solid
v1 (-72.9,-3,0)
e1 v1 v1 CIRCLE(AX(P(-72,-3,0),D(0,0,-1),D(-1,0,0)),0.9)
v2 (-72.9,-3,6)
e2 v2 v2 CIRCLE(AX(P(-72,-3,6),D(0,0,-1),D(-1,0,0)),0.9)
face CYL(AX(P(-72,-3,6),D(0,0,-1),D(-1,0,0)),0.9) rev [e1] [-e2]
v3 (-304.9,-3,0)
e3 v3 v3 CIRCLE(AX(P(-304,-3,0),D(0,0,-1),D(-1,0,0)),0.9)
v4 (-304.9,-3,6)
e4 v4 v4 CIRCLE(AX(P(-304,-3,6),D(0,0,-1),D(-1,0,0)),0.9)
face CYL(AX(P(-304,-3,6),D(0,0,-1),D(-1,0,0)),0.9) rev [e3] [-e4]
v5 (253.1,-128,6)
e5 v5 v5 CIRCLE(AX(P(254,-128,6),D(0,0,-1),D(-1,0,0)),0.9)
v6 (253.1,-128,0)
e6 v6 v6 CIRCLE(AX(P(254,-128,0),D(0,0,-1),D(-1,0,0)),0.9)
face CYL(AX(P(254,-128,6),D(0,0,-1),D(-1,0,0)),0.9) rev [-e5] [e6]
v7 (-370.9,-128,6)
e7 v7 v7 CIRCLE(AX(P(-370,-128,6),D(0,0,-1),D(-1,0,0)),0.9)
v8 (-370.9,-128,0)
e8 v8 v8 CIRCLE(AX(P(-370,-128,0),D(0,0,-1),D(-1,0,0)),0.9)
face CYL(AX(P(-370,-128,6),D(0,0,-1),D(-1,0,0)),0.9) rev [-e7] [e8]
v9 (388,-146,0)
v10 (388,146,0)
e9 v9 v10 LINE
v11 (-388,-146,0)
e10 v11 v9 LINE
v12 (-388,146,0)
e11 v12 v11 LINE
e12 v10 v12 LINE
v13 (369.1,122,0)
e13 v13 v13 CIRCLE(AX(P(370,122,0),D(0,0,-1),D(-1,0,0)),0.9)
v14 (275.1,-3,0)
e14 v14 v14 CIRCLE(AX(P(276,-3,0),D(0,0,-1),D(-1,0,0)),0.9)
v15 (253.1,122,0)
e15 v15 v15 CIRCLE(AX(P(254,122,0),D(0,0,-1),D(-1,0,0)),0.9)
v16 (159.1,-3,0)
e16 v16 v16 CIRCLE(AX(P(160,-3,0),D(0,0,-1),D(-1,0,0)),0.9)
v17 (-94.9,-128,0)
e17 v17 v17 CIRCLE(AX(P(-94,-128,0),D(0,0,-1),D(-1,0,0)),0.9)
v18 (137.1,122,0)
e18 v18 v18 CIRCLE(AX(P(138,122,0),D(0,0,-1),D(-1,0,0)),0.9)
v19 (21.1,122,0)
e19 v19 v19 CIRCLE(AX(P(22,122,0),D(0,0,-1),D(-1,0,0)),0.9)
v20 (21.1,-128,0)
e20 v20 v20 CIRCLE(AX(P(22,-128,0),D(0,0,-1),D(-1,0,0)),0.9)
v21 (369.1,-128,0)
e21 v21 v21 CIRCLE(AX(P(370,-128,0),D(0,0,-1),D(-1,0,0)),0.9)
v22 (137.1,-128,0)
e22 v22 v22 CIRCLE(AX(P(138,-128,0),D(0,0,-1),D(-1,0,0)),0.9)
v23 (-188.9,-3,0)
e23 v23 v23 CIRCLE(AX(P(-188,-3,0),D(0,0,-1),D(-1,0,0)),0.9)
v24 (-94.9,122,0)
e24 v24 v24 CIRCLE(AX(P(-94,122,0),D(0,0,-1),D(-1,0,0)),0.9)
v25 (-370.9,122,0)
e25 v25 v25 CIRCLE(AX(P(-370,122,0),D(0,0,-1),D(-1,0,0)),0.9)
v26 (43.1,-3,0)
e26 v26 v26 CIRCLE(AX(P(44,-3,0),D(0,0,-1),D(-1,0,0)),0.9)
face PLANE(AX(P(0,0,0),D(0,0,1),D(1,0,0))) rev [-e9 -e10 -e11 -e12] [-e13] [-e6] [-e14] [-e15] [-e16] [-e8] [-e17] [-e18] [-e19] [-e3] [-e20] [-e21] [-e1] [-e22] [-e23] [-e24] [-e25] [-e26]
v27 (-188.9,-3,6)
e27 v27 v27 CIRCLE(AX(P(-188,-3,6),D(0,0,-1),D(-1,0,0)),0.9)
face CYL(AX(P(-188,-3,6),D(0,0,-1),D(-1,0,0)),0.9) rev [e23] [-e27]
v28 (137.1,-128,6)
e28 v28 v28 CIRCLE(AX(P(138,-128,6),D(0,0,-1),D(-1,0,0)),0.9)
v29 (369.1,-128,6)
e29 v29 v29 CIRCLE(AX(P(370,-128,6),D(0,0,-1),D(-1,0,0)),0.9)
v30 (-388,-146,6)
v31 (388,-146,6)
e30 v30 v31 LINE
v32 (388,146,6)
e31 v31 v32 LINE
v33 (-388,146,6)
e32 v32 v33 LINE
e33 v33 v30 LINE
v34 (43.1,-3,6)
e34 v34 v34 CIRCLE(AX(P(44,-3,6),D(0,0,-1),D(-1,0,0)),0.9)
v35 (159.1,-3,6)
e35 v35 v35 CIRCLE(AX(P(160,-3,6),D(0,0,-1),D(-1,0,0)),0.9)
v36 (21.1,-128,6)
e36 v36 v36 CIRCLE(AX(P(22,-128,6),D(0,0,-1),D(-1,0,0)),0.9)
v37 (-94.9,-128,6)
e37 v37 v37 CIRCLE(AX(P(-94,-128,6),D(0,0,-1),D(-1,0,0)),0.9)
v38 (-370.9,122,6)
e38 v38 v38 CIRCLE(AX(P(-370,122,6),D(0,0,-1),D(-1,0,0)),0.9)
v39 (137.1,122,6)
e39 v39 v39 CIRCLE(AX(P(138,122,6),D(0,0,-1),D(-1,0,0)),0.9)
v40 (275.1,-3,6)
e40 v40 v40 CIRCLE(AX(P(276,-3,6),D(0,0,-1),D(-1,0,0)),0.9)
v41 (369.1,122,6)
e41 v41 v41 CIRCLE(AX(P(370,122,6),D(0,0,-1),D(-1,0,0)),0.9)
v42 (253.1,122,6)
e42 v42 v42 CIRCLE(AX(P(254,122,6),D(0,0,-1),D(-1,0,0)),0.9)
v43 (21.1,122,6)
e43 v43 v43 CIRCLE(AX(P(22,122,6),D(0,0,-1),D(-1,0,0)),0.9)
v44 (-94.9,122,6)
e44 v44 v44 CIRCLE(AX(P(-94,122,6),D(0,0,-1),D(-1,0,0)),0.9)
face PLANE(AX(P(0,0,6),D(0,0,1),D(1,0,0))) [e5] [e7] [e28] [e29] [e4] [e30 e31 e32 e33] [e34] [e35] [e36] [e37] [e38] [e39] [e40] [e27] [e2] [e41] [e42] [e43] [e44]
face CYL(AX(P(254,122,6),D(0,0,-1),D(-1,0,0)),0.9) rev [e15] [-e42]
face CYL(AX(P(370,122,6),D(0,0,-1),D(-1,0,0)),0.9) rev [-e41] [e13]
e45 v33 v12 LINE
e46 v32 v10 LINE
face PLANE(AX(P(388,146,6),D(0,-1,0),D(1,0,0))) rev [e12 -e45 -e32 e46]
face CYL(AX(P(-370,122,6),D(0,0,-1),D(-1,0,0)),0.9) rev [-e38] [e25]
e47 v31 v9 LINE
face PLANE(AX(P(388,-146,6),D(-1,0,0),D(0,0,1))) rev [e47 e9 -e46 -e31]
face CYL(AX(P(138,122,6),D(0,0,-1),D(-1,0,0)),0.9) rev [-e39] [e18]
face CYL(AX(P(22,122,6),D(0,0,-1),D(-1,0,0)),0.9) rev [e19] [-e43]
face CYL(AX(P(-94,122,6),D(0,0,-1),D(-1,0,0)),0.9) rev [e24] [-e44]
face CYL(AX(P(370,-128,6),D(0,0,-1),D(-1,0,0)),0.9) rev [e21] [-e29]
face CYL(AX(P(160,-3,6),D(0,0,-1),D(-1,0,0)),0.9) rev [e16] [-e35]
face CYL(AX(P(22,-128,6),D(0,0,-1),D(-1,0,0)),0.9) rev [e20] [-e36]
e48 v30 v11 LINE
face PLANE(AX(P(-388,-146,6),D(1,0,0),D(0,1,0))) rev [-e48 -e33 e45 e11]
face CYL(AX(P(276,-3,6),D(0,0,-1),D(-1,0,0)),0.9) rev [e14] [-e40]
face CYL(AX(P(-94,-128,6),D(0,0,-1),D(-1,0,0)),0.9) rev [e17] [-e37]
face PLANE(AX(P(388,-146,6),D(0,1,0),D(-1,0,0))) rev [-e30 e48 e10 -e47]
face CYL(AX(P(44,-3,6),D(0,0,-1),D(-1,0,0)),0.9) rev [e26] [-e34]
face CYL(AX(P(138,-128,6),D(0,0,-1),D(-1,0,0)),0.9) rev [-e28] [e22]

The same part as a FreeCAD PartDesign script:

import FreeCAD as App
import Part
import Sketcher

V = App.Vector


def add_polygon(sketch, points):
    """Adds a closed chain of lines whose ends are joined by coincident constraints."""
    first, n = sketch.GeometryCount, len(points)
    for a, b in zip(points, points[1:] + points[:1]):
        sketch.addGeometry(Part.LineSegment(App.Vector(*a, 0), App.Vector(*b, 0)), False)
    for i in range(n):
        sketch.addConstraint(Sketcher.Constraint("Coincident", first + i, 2, first + (i + 1) % n, 1))

doc = App.newDocument("Part")
body = doc.addObject("PartDesign::Body", "Body")

# Sketch on XY plane
sketch1 = body.newObject("Sketcher::SketchObject", "Sketch")
sketch1.AttachmentSupport = (doc.getObject("XY_Plane"), [""])
sketch1.MapMode = "FlatFace"
add_polygon(sketch1, [(-388, 146), (-388, -146), (388, -146), (388, 146)])  # lines 0-3
sketch1.addConstraint(Sketcher.Constraint("Vertical", 0))
sketch1.addConstraint(Sketcher.Constraint("Horizontal", 1))
sketch1.addConstraint(Sketcher.Constraint("Vertical", 2))
sketch1.addConstraint(Sketcher.Constraint("Horizontal", 3))
sketch1.addConstraint(Sketcher.Constraint("Symmetric", 0, 2, 2, 2, -1, 1))
sketch1.addConstraint(Sketcher.Constraint("DistanceX", 1, 1, 1, 2, 776.0))
sketch1.addConstraint(Sketcher.Constraint("DistanceY", 0, 2, 0, 1, 292.0))
pad1 = body.newObject("PartDesign::Pad", "Pad")
pad1.Profile = sketch1
pad1.Length = 6

# Sketch on XY plane
sketch2 = body.newObject("Sketcher::SketchObject", "Sketch001")
sketch2.AttachmentSupport = (doc.getObject("XY_Plane"), [""])
sketch2.MapMode = "FlatFace"
sketch2.addGeometry(Part.Circle(V(370, -128, 0), V(0, 0, 1), 0.9), False)
sketch2.addGeometry(Part.Circle(V(370, 122, 0), V(0, 0, 1), 0.9), False)
sketch2.addGeometry(Part.Circle(V(-370, -128, 0), V(0, 0, 1), 0.9), False)
sketch2.addGeometry(Part.Circle(V(-370, 122, 0), V(0, 0, 1), 0.9), False)
sketch2.addGeometry(Part.Circle(V(276, -3, 0), V(0, 0, 1), 0.9), False)
sketch2.addGeometry(Part.Circle(V(254, -128, 0), V(0, 0, 1), 0.9), False)
sketch2.addGeometry(Part.Circle(V(254, 122, 0), V(0, 0, 1), 0.9), False)
sketch2.addGeometry(Part.Circle(V(160, -3, 0), V(0, 0, 1), 0.9), False)
sketch2.addGeometry(Part.Circle(V(138, -128, 0), V(0, 0, 1), 0.9), False)
sketch2.addGeometry(Part.Circle(V(138, 122, 0), V(0, 0, 1), 0.9), False)
sketch2.addGeometry(Part.Circle(V(44, -3, 0), V(0, 0, 1), 0.9), False)
sketch2.addGeometry(Part.Circle(V(22, -128, 0), V(0, 0, 1), 0.9), False)
sketch2.addGeometry(Part.Circle(V(22, 122, 0), V(0, 0, 1), 0.9), False)
sketch2.addGeometry(Part.Circle(V(-72, -3, 0), V(0, 0, 1), 0.9), False)
sketch2.addGeometry(Part.Circle(V(-94, -128, 0), V(0, 0, 1), 0.9), False)
sketch2.addGeometry(Part.Circle(V(-94, 122, 0), V(0, 0, 1), 0.9), False)
sketch2.addGeometry(Part.Circle(V(-188, -3, 0), V(0, 0, 1), 0.9), False)
sketch2.addGeometry(Part.Circle(V(-304, -3, 0), V(0, 0, 1), 0.9), False)
sketch2.addConstraint(Sketcher.Constraint("Equal", 0, 1))
sketch2.addConstraint(Sketcher.Constraint("Equal", 1, 2))
sketch2.addConstraint(Sketcher.Constraint("Equal", 2, 3))
sketch2.addConstraint(Sketcher.Constraint("Equal", 3, 4))
sketch2.addConstraint(Sketcher.Constraint("Equal", 4, 5))
sketch2.addConstraint(Sketcher.Constraint("Equal", 5, 6))
sketch2.addConstraint(Sketcher.Constraint("Equal", 6, 7))
sketch2.addConstraint(Sketcher.Constraint("Equal", 7, 8))
sketch2.addConstraint(Sketcher.Constraint("Equal", 8, 9))
sketch2.addConstraint(Sketcher.Constraint("Equal", 9, 10))
sketch2.addConstraint(Sketcher.Constraint("Equal", 10, 11))
sketch2.addConstraint(Sketcher.Constraint("Equal", 11, 12))
sketch2.addConstraint(Sketcher.Constraint("Equal", 12, 13))
sketch2.addConstraint(Sketcher.Constraint("Equal", 13, 14))
sketch2.addConstraint(Sketcher.Constraint("Equal", 14, 15))
sketch2.addConstraint(Sketcher.Constraint("Equal", 15, 16))
sketch2.addConstraint(Sketcher.Constraint("Equal", 16, 17))
sketch2.addConstraint(Sketcher.Constraint("Symmetric", 0, 3, 2, 3, -2))
sketch2.addConstraint(Sketcher.Constraint("Symmetric", 1, 3, 3, 3, -2))
sketch2.addConstraint(Sketcher.Constraint("Horizontal", 2, 3, 5, 3))
sketch2.addConstraint(Sketcher.Constraint("Horizontal", 3, 3, 6, 3))
sketch2.addConstraint(Sketcher.Constraint("Horizontal", 4, 3, 7, 3))
sketch2.addConstraint(Sketcher.Constraint("Horizontal", 5, 3, 8, 3))
sketch2.addConstraint(Sketcher.Constraint("Horizontal", 6, 3, 9, 3))
sketch2.addConstraint(Sketcher.Constraint("Horizontal", 7, 3, 10, 3))
sketch2.addConstraint(Sketcher.Constraint("Horizontal", 8, 3, 11, 3))
sketch2.addConstraint(Sketcher.Constraint("Horizontal", 9, 3, 12, 3))
sketch2.addConstraint(Sketcher.Constraint("Horizontal", 10, 3, 13, 3))
sketch2.addConstraint(Sketcher.Constraint("Horizontal", 11, 3, 14, 3))
sketch2.addConstraint(Sketcher.Constraint("Horizontal", 12, 3, 15, 3))
sketch2.addConstraint(Sketcher.Constraint("Horizontal", 13, 3, 16, 3))
sketch2.addConstraint(Sketcher.Constraint("Horizontal", 16, 3, 17, 3))
sketch2.addConstraint(Sketcher.Constraint("Vertical", 0, 3, 1, 3))
sketch2.addConstraint(Sketcher.Constraint("Vertical", 5, 3, 6, 3))
sketch2.addConstraint(Sketcher.Constraint("Vertical", 8, 3, 9, 3))
sketch2.addConstraint(Sketcher.Constraint("Vertical", 11, 3, 12, 3))
sketch2.addConstraint(Sketcher.Constraint("Vertical", 14, 3, 15, 3))
sketch2.addConstraint(Sketcher.Constraint("Diameter", 0, 1.8))
sketch2.addConstraint(Sketcher.Constraint("DistanceX", -1, 1, 0, 3, 370.0))
sketch2.addConstraint(Sketcher.Constraint("DistanceY", 0, 3, -1, 1, 128.0))
sketch2.addConstraint(Sketcher.Constraint("DistanceY", -1, 1, 1, 3, 122.0))
sketch2.addConstraint(Sketcher.Constraint("DistanceX", -1, 1, 4, 3, 276.0))
sketch2.addConstraint(Sketcher.Constraint("DistanceY", 4, 3, -1, 1, 3.0))
sketch2.addConstraint(Sketcher.Constraint("DistanceX", -1, 1, 5, 3, 254.0))
sketch2.addConstraint(Sketcher.Constraint("DistanceX", -1, 1, 7, 3, 160.0))
sketch2.addConstraint(Sketcher.Constraint("DistanceX", -1, 1, 8, 3, 138.0))
sketch2.addConstraint(Sketcher.Constraint("DistanceX", -1, 1, 10, 3, 44.0))
sketch2.addConstraint(Sketcher.Constraint("DistanceX", -1, 1, 11, 3, 22.0))
sketch2.addConstraint(Sketcher.Constraint("DistanceX", 13, 3, -1, 1, 72.0))
sketch2.addConstraint(Sketcher.Constraint("DistanceX", 14, 3, -1, 1, 94.0))
sketch2.addConstraint(Sketcher.Constraint("DistanceX", 16, 3, -1, 1, 188.0))
sketch2.addConstraint(Sketcher.Constraint("DistanceX", 17, 3, -1, 1, 304.0))
pocket1 = body.newObject("PartDesign::Pocket", "Pocket")
pocket1.Profile = sketch2
pocket1.Length = 6
pocket1.Reversed = True

doc.recompute()
